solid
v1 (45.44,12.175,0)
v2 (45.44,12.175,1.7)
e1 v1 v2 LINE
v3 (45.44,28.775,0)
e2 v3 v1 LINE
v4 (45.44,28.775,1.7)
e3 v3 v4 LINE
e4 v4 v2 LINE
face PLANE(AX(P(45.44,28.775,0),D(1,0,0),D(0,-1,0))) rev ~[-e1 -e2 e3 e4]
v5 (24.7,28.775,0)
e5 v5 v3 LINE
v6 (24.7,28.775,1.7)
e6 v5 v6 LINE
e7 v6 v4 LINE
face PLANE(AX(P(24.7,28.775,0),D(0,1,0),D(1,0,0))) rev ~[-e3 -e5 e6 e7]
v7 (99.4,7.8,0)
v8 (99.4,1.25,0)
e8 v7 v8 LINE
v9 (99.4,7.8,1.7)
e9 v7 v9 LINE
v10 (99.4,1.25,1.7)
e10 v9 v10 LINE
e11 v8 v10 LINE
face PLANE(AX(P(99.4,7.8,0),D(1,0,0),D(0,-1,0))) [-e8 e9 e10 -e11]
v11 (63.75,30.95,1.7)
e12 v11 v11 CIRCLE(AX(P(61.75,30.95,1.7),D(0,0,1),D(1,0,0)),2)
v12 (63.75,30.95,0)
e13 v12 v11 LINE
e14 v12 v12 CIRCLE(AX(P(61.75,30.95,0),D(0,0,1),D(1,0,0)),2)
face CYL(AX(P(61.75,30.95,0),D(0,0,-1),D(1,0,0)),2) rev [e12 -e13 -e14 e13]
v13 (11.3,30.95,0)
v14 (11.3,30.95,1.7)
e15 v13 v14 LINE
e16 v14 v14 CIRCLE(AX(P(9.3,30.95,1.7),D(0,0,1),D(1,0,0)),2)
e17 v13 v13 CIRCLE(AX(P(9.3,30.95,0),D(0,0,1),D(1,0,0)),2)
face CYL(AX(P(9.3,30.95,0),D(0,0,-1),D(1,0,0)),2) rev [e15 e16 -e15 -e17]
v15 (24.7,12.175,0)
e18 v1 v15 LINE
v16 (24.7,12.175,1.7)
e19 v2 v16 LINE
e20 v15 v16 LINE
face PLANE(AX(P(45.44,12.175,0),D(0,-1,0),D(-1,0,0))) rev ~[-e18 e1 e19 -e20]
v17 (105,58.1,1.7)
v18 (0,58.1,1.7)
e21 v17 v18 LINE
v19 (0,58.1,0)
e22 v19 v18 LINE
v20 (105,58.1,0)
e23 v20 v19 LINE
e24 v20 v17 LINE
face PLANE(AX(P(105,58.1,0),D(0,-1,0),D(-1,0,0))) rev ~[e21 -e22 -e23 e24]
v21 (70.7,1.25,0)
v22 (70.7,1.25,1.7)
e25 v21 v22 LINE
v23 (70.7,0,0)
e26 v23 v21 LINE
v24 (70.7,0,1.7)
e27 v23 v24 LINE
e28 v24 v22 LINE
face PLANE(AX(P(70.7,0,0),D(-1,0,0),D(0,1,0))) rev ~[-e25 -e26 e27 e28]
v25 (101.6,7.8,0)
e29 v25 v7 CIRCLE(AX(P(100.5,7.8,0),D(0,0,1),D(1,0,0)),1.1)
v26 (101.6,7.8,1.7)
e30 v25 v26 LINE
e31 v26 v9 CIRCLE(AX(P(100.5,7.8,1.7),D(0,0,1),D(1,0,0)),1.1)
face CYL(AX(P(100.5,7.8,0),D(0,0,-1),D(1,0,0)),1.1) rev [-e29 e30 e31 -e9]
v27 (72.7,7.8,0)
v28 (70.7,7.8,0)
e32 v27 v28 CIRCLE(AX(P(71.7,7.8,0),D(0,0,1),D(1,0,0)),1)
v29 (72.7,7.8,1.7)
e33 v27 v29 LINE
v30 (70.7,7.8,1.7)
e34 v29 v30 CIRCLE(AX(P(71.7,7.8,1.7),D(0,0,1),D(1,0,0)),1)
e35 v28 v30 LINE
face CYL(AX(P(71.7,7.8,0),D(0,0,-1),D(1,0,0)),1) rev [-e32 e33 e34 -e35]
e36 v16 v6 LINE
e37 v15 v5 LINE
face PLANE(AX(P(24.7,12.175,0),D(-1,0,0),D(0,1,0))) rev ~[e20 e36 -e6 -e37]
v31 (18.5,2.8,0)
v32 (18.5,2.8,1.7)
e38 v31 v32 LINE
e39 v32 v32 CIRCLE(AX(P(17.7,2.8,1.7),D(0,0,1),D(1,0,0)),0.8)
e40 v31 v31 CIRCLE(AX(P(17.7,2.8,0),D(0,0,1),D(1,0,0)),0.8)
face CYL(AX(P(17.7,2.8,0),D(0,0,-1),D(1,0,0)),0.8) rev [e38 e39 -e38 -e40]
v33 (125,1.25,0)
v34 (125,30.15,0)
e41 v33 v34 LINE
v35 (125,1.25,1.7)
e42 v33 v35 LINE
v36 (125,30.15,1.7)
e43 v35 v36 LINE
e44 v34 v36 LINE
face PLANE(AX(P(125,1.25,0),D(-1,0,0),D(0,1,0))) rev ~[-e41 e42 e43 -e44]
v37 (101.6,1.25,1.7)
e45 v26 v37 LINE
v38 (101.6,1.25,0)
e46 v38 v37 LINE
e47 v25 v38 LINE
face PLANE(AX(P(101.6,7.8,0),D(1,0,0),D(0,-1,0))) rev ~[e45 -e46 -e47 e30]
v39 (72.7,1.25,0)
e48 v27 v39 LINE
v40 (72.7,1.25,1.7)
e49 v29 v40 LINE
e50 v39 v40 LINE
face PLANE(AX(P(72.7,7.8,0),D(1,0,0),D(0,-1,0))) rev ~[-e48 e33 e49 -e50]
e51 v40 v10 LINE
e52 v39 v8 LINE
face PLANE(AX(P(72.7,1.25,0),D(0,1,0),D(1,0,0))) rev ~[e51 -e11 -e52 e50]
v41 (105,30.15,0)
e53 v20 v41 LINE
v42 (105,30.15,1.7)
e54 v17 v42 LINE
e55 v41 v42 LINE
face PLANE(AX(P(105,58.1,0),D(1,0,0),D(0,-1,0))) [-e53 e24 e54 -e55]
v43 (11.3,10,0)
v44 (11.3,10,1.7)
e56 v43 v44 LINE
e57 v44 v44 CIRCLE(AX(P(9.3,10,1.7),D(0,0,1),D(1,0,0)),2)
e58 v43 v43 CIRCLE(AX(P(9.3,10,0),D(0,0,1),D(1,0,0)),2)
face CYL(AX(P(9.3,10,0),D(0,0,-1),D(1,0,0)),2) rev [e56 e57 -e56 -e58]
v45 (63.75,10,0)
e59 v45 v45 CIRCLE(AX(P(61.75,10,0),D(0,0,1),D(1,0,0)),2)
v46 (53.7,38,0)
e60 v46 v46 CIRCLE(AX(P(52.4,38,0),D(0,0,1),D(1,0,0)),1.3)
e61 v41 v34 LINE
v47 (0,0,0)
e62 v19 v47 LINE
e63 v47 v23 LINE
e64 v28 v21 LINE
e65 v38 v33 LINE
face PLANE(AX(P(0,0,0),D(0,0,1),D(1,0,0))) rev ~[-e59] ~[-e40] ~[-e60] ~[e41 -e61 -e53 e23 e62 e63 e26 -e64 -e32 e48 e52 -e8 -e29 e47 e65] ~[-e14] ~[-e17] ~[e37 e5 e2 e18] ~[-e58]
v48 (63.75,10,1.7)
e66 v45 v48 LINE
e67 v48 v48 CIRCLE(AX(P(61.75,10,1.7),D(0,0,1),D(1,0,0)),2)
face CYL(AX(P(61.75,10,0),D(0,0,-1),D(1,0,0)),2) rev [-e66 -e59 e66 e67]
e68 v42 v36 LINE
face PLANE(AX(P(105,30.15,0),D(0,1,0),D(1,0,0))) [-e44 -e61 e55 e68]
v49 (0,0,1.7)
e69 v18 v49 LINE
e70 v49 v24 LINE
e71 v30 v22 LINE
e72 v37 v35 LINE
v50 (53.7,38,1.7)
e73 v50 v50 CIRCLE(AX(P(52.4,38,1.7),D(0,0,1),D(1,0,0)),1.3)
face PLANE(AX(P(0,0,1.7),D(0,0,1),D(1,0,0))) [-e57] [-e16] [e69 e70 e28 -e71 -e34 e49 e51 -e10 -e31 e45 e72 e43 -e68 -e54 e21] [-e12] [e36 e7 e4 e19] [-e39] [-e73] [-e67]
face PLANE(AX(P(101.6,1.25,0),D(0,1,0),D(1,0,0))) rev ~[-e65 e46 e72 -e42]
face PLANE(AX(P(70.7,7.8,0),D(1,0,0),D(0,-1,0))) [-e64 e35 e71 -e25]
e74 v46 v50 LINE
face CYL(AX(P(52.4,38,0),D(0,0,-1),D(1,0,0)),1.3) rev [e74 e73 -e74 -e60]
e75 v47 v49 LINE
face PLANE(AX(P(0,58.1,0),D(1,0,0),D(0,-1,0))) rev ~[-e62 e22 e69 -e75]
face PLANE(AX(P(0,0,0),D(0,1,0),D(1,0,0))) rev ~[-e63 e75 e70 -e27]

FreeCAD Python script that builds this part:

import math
import FreeCAD as App
import Part
import Sketcher

V = App.Vector
Q = App.Units.Quantity


def add_polygon(sketch, points):
    """Adds a closed chain of lines whose ends are joined by coincident constraints."""
    first, n = sketch.GeometryCount, len(points)
    for a, b in zip(points, points[1:] + points[:1]):
        sketch.addGeometry(Part.LineSegment(App.Vector(*a, 0), App.Vector(*b, 0)), False)
    for i in range(n):
        sketch.addConstraint(Sketcher.Constraint("Coincident", first + i, 2, first + (i + 1) % n, 1))

doc = App.newDocument("Part")
params = doc.addObject("Spreadsheet::Sheet", "Params")
for row, (alias, value) in enumerate([
    ("sketch1_diameter", "4 mm"),
    ("sketch1_radius", "1 mm"),
    ("sketch1_diameter2", "1.6 mm"),
    ("sketch1_diameter3", "2.6 mm"),
    ("sketch1_radius2", "1.1 mm"),
    ("pad1_length", "1.7 mm"),
], start=1):
    params.set(f"A{row}", alias)
    params.set(f"B{row}", "=" + value)
    params.setAlias(f"B{row}", alias)

body = doc.addObject("PartDesign::Body", "Body")

# Sketch on XY plane
sketch1 = doc.addObject("Sketcher::SketchObject", "Sketch")
body.addObject(sketch1)
sketch1.AttachmentSupport = (doc.XY_Plane, [""])
sketch1.MapMode = "FlatFace"
sketch1.addGeometry(Part.LineSegment(V(0, 58.1, 0), V(0, 0, 0)), False)  # 0
sketch1.addGeometry(Part.LineSegment(V(0, 0, 0), V(70.7, 0, 0)), False)  # 1
sketch1.addGeometry(Part.LineSegment(V(70.7, 0, 0), V(70.7, 7.8, 0)), False)  # 2
sketch1.addGeometry(Part.ArcOfCircle(Part.Circle(V(71.7, 7.8, 0), V(0, 0, 1), 1), math.radians(0), math.radians(180)), False)  # 3
sketch1.addGeometry(Part.LineSegment(V(72.7, 7.8, 0), V(72.7, 1.2, 0)), False)  # 4
sketch1.addGeometry(Part.LineSegment(V(72.7, 1.2, 0), V(99.4, 1.2, 0)), False)  # 5
sketch1.addGeometry(Part.LineSegment(V(99.4, 1.2, 0), V(99.4, 7.8, 0)), False)  # 6
sketch1.addGeometry(Part.ArcOfCircle(Part.Circle(V(100.5, 7.8, 0), V(0, 0, 1), 1.1), math.radians(0), math.radians(180)), False)  # 7
sketch1.addGeometry(Part.LineSegment(V(101.6, 7.8, 0), V(101.6, 1.2, 0)), False)  # 8
sketch1.addGeometry(Part.LineSegment(V(101.6, 1.2, 0), V(125, 1.2, 0)), False)  # 9
sketch1.addGeometry(Part.LineSegment(V(125, 1.2, 0), V(125, 30.1, 0)), False)  # 10
sketch1.addGeometry(Part.LineSegment(V(125, 30.1, 0), V(105, 30.1, 0)), False)  # 11
sketch1.addGeometry(Part.LineSegment(V(105, 30.1, 0), V(105, 58.1, 0)), False)  # 12
sketch1.addGeometry(Part.LineSegment(V(105, 58.1, 0), V(0, 58.1, 0)), False)  # 13
sketch1.addGeometry(Part.Circle(V(17.7, 2.8, 0), V(0, 0, 1), 0.8), False)  # 14
sketch1.addGeometry(Part.Circle(V(9.3, 10, 0), V(0, 0, 1), 2), False)  # 15
sketch1.addGeometry(Part.Circle(V(61.8, 10, 0), V(0, 0, 1), 2), False)  # 16
add_polygon(sketch1, [(24.7, 12.2), (24.7, 28.8), (45.4, 28.8), (45.4, 12.2)])  # lines 17-20
sketch1.addGeometry(Part.Circle(V(9.3, 30.9, 0), V(0, 0, 1), 2), False)  # 21
sketch1.addGeometry(Part.Circle(V(61.8, 30.9, 0), V(0, 0, 1), 2), False)  # 22
sketch1.addGeometry(Part.Circle(V(52.4, 38, 0), V(0, 0, 1), 1.3), False)  # 23
sketch1.addConstraint(Sketcher.Constraint("Coincident", 0, 2, 1, 1))
sketch1.addConstraint(Sketcher.Constraint("Coincident", 1, 2, 2, 1))
sketch1.addConstraint(Sketcher.Constraint("Tangent", 2, 2, 3, 2))
sketch1.addConstraint(Sketcher.Constraint("Tangent", 3, 1, 4, 1))
sketch1.addConstraint(Sketcher.Constraint("Coincident", 4, 2, 5, 1))
sketch1.addConstraint(Sketcher.Constraint("Coincident", 5, 2, 6, 1))
sketch1.addConstraint(Sketcher.Constraint("Tangent", 6, 2, 7, 2))
sketch1.addConstraint(Sketcher.Constraint("Tangent", 7, 1, 8, 1))
sketch1.addConstraint(Sketcher.Constraint("Coincident", 8, 2, 9, 1))
sketch1.addConstraint(Sketcher.Constraint("Coincident", 9, 2, 10, 1))
sketch1.addConstraint(Sketcher.Constraint("Coincident", 10, 2, 11, 1))
sketch1.addConstraint(Sketcher.Constraint("Coincident", 11, 2, 12, 1))
sketch1.addConstraint(Sketcher.Constraint("Coincident", 12, 2, 13, 1))
sketch1.addConstraint(Sketcher.Constraint("Coincident", 13, 2, 0, 1))
sketch1.addConstraint(Sketcher.Constraint("Vertical", 0))
sketch1.addConstraint(Sketcher.Constraint("Horizontal", 1))
sketch1.addConstraint(Sketcher.Constraint("Vertical", 2))
sketch1.addConstraint(Sketcher.Constraint("Vertical", 4))
sketch1.addConstraint(Sketcher.Constraint("Horizontal", 5))
sketch1.addConstraint(Sketcher.Constraint("Vertical", 6))
sketch1.addConstraint(Sketcher.Constraint("Vertical", 8))
sketch1.addConstraint(Sketcher.Constraint("Horizontal", 9))
sketch1.addConstraint(Sketcher.Constraint("Vertical", 10))
sketch1.addConstraint(Sketcher.Constraint("Horizontal", 11))
sketch1.addConstraint(Sketcher.Constraint("Vertical", 12))
sketch1.addConstraint(Sketcher.Constraint("Horizontal", 13))
sketch1.addConstraint(Sketcher.Constraint("Vertical", 17))
sketch1.addConstraint(Sketcher.Constraint("Horizontal", 18))
sketch1.addConstraint(Sketcher.Constraint("Vertical", 19))
sketch1.addConstraint(Sketcher.Constraint("Horizontal", 20))
sketch1.addConstraint(Sketcher.Constraint("Coincident", 0, 2, -1, 1))
sketch1.addConstraint(Sketcher.Constraint("Equal", 15, 16))
sketch1.addConstraint(Sketcher.Constraint("Equal", 16, 21))
sketch1.addConstraint(Sketcher.Constraint("Equal", 21, 22))
sketch1.addConstraint(Sketcher.Constraint("Horizontal", 3, 3, 7, 3))
sketch1.addConstraint(Sketcher.Constraint("Horizontal", 15, 3, 16, 3))
sketch1.addConstraint(Sketcher.Constraint("Horizontal", 21, 3, 22, 3))
sketch1.addConstraint(Sketcher.Constraint("Horizontal", 5, 2, 8, 2))
sketch1.addConstraint(Sketcher.Constraint("Vertical", 15, 3, 21, 3))
sketch1.addConstraint(Sketcher.Constraint("Vertical", 16, 3, 22, 3))
sketch1.addConstraint(Sketcher.Constraint("Diameter", 15, Q("4 mm")))
sketch1.addConstraint(Sketcher.Constraint("Radius", 3, Q("1 mm")))
sketch1.addConstraint(Sketcher.Constraint("Diameter", 14, Q("1.6 mm")))
sketch1.addConstraint(Sketcher.Constraint("Diameter", 23, Q("2.6 mm")))
sketch1.addConstraint(Sketcher.Constraint("Radius", 7, Q("1.1 mm")))
sketch1.addConstraint(Sketcher.Constraint("DistanceX", 11, 2, 11, 1, Q("20 mm")))
sketch1.addConstraint(Sketcher.Constraint("DistanceX", 1, 1, 1, 2, Q("70.7 mm")))
sketch1.addConstraint(Sketcher.Constraint("DistanceX", 5, 1, 5, 2, Q("26.7 mm")))
sketch1.addConstraint(Sketcher.Constraint("DistanceY", 0, 2, 0, 1, Q("58.1 mm")))
sketch1.addConstraint(Sketcher.Constraint("DistanceY", 2, 1, 2, 2, Q("7.8 mm")))
sketch1.addConstraint(Sketcher.Constraint("DistanceY", 10, 1, 10, 2, Q("28.9 mm")))
sketch1.addConstraint(Sketcher.Constraint("DistanceY", 17, 1, 17, 2, Q("16.6 mm")))
sketch1.addConstraint(Sketcher.Constraint("DistanceY", -1, 1, 15, 3, Q("10 mm")))
sketch1.addConstraint(Sketcher.Constraint("DistanceY", -1, 1, 23, 3, Q("38 mm")))
sketch1.addConstraint(Sketcher.Constraint("DistanceX", -1, 1, 9, 2, Q("125 mm")))
sketch1.addConstraint(Sketcher.Constraint("DistanceX", 18, 1, 18, 2, Q("20.74 mm")))
sketch1.addConstraint(Sketcher.Constraint("DistanceX", -1, 1, 14, 3, Q("17.7 mm")))
sketch1.addConstraint(Sketcher.Constraint("DistanceY", -1, 1, 14, 3, Q("2.8 mm")))
sketch1.addConstraint(Sketcher.Constraint("DistanceX", -1, 1, 15, 3, Q("9.3 mm")))
sketch1.addConstraint(Sketcher.Constraint("DistanceX", -1, 1, 23, 3, Q("52.4 mm")))
sketch1.addConstraint(Sketcher.Constraint("DistanceX", -1, 1, 17, 2, Q("24.7 mm")))
sketch1.addConstraint(Sketcher.Constraint("DistanceY", -1, 1, 4, 2, Q("1.25 mm")))
sketch1.addConstraint(Sketcher.Constraint("DistanceX", 15, 3, 16, 3, Q("52.45 mm")))
sketch1.addConstraint(Sketcher.Constraint("DistanceY", 15, 3, 21, 3, Q("20.95 mm")))
sketch1.addConstraint(Sketcher.Constraint("DistanceY", -1, 1, 17, 2, Q("28.775 mm")))
sketch1.setExpression("Constraints[44]", "Params.sketch1_diameter")
sketch1.setExpression("Constraints[45]", "Params.sketch1_radius")
sketch1.setExpression("Constraints[46]", "Params.sketch1_diameter2")
sketch1.setExpression("Constraints[47]", "Params.sketch1_diameter3")
sketch1.setExpression("Constraints[48]", "Params.sketch1_radius2")
pad1 = doc.addObject("PartDesign::Pad", "Pad")
body.addObject(pad1)
pad1.Profile = sketch1
pad1.setExpression("Length", "Params.pad1_length")

doc.recompute()
